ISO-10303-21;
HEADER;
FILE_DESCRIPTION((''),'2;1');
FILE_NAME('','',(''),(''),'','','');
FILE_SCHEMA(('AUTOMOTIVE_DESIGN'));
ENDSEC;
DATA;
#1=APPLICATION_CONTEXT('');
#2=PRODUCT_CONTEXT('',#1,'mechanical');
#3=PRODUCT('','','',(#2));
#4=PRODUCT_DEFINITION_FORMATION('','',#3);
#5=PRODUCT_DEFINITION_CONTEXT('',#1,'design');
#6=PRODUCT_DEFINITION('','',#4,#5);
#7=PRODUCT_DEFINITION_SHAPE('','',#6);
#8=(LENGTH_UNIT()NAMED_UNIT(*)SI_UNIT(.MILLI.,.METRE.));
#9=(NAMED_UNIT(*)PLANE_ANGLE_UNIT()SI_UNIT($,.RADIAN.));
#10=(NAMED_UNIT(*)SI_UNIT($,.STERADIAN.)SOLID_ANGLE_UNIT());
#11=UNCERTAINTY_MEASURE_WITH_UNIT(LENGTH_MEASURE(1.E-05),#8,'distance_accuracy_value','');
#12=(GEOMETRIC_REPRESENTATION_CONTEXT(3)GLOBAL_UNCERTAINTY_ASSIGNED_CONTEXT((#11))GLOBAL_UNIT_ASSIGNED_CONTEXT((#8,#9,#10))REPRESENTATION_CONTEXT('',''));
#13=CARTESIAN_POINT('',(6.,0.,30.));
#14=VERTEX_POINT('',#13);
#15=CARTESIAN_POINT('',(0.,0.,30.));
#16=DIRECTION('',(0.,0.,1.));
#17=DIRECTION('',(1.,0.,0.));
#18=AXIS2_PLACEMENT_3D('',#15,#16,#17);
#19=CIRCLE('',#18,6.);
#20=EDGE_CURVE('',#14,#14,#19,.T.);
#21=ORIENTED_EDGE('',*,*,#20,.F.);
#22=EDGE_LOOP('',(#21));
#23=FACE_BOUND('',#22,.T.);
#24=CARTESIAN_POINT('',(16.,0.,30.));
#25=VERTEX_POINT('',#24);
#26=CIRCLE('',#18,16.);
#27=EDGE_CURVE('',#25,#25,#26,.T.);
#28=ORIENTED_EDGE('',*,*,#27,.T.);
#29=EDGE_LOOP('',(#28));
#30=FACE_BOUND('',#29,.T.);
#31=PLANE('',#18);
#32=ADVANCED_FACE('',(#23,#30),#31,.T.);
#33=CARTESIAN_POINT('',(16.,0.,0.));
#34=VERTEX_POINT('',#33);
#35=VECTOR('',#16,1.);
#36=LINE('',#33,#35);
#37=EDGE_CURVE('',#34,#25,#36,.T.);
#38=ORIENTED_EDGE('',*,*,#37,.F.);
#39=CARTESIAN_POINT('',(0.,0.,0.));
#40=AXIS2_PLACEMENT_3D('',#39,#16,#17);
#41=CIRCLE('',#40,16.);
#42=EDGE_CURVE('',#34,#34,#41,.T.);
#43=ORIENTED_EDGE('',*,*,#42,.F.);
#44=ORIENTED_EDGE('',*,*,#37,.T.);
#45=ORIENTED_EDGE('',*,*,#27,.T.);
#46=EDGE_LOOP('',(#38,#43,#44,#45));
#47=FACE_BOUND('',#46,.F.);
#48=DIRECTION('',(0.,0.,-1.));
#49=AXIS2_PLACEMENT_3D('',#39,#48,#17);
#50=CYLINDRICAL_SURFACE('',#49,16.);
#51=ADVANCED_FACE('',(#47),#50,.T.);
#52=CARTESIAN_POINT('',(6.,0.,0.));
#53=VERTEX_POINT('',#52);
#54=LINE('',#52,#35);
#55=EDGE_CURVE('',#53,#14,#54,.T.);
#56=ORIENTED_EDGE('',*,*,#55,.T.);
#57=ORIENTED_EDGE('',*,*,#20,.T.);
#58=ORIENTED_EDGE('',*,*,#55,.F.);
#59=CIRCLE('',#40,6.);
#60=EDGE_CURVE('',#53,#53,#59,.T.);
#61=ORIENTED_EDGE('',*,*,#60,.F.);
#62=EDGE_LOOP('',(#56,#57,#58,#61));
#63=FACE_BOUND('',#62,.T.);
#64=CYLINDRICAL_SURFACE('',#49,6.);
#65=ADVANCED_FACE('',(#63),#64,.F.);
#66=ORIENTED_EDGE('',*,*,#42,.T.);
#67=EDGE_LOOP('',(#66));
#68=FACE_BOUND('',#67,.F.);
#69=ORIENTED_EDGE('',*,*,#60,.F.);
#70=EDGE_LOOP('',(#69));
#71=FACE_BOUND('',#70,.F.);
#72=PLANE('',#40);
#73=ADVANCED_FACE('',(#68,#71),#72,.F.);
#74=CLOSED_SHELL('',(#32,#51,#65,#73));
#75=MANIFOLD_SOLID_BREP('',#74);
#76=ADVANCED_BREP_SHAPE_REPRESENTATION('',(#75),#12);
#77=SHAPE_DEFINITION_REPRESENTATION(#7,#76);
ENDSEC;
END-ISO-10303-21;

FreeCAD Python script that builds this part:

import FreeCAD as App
import Part
import Sketcher

doc = App.newDocument("Part")
body = doc.addObject("PartDesign::Body", "Body")

# Sketch on XY plane
sketch1 = body.newObject("Sketcher::SketchObject", "Sketch")
sketch1.AttachmentSupport = (doc.getObject("XY_Plane"), [""])
sketch1.MapMode = "FlatFace"
sketch1.addGeometry([
    Part.Circle(App.Vector(0, 0, 0), App.Vector(0, 0, 1), 16),
    Part.Circle(App.Vector(0, 0, 0), App.Vector(0, 0, 1), 6),
], False)
sketch1.addConstraint([
    Sketcher.Constraint("Coincident", 0, 3, -1, 1),
    Sketcher.Constraint("Coincident", 1, 3, -1, 1),
    Sketcher.Constraint("Diameter", 1, 12.0),
    Sketcher.Constraint("Diameter", 0, 32.0),
])
pad1 = body.newObject("PartDesign::Pad", "Pad")
pad1.Profile = sketch1
pad1.Length = 30

doc.recompute()
